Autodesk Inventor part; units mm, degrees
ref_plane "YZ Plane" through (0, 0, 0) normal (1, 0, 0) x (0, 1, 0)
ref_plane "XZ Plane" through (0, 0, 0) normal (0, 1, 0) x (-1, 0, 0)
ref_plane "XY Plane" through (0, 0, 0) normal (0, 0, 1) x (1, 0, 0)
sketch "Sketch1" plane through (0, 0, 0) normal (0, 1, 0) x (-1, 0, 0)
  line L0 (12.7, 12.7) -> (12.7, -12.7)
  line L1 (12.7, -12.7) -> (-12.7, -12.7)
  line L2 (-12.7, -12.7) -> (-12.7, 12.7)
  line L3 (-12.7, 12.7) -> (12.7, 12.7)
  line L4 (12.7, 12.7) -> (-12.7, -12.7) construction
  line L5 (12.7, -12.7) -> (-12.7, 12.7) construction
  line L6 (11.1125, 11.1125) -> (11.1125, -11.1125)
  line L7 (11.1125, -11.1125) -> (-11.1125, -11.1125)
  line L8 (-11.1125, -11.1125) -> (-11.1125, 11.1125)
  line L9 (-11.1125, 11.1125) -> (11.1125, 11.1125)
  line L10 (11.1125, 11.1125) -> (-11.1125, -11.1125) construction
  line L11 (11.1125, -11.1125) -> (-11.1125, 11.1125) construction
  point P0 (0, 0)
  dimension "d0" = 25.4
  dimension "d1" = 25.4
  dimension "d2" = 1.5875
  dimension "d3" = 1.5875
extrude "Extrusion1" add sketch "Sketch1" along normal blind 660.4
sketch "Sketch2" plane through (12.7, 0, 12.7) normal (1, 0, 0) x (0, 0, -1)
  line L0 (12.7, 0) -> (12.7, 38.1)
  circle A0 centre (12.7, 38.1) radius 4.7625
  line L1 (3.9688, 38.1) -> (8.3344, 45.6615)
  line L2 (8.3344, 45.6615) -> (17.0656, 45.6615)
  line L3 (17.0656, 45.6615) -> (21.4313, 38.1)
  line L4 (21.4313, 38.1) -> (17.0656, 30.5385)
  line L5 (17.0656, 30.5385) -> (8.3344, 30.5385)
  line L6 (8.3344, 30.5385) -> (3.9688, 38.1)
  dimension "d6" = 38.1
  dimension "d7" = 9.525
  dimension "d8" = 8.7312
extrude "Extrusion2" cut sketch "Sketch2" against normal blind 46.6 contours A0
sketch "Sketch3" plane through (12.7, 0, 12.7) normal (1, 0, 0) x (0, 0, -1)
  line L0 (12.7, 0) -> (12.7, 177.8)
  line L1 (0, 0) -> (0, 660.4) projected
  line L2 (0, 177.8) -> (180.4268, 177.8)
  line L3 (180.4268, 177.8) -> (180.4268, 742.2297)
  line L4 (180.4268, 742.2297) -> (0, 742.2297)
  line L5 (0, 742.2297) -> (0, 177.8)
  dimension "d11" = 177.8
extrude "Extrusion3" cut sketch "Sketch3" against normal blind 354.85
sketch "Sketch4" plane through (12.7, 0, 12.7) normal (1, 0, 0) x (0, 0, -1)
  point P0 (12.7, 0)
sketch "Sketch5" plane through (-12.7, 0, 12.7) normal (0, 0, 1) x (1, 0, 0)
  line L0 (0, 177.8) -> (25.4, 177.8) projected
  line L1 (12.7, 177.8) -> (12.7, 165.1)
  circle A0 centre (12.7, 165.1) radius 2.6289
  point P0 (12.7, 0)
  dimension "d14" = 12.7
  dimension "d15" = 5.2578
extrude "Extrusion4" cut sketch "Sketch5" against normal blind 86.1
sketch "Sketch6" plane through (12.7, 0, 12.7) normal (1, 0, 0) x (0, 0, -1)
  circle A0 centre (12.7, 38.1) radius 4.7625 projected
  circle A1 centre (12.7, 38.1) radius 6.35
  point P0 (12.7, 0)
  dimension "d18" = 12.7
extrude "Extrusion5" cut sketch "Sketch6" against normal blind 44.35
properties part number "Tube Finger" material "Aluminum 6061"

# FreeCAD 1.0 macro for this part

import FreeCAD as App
import Part
import Sketcher
Q = App.Units.Quantity

doc = App.newDocument("Part")
body = doc.addObject("PartDesign::Body", "Body")

# Sketch on XZ plane
sketch1 = doc.addObject("Sketcher::SketchObject", "Sketch")
body.addObject(sketch1)
sketch1.AttachmentSupport = (doc.XZ_Plane, [""])
sketch1.MapMode = "FlatFace"
sketch1.addGeometry([
    Part.LineSegment(App.Vector(-13, -13, 0), App.Vector(-13, 13, 0)),  # 0
    Part.LineSegment(App.Vector(-13, 13, 0), App.Vector(13, 13, 0)),  # 1
    Part.LineSegment(App.Vector(13, 13, 0), App.Vector(13, -13, 0)),  # 2
    Part.LineSegment(App.Vector(13, -13, 0), App.Vector(-13, -13, 0)),  # 3
    Part.LineSegment(App.Vector(11, 11, 0), App.Vector(-11, 11, 0)),  # 4
    Part.LineSegment(App.Vector(-11, 11, 0), App.Vector(-11, -11, 0)),  # 5
    Part.LineSegment(App.Vector(-11, -11, 0), App.Vector(11, -11, 0)),  # 6
    Part.LineSegment(App.Vector(11, -11, 0), App.Vector(11, 11, 0)),  # 7
], False)
sketch1.addConstraint([
    Sketcher.Constraint("Coincident", 0, 2, 1, 1),
    Sketcher.Constraint("Coincident", 1, 2, 2, 1),
    Sketcher.Constraint("Coincident", 2, 2, 3, 1),
    Sketcher.Constraint("Coincident", 3, 2, 0, 1),
    Sketcher.Constraint("Coincident", 4, 2, 5, 1),
    Sketcher.Constraint("Coincident", 5, 2, 6, 1),
    Sketcher.Constraint("Coincident", 6, 2, 7, 1),
    Sketcher.Constraint("Coincident", 7, 2, 4, 1),
    Sketcher.Constraint("Vertical", 0),
    Sketcher.Constraint("Horizontal", 1),
    Sketcher.Constraint("Vertical", 2),
    Sketcher.Constraint("Horizontal", 3),
    Sketcher.Constraint("Horizontal", 4),
    Sketcher.Constraint("Vertical", 5),
    Sketcher.Constraint("Horizontal", 6),
    Sketcher.Constraint("Vertical", 7),
    Sketcher.Constraint("Symmetric", 0, 2, 2, 2, -1, 1),
    Sketcher.Constraint("Symmetric", 4, 2, 6, 2, -1, 1),
    Sketcher.Constraint("Equal", 3, 0),
    Sketcher.Constraint("Equal", 6, 5),
    Sketcher.Constraint("DistanceX", 1, 1, 1, 2, Q("1 in")),
    Sketcher.Constraint("DistanceX", 0, 2, 4, 2, Q("0.0625 in")),
])
pad1 = doc.addObject("PartDesign::Pad", "Pad")
body.addObject(pad1)
pad1.Profile = sketch1
pad1.Length = Q("26 in")
pad1.Reversed = True

# Sketch on YZ plane
sketch2 = doc.addObject("Sketcher::SketchObject", "Sketch001")
body.addObject(sketch2)
sketch2.AttachmentSupport = (doc.YZ_Plane, [""])
sketch2.MapMode = "FlatFace"
sketch2.AttachmentOffset = App.Placement(App.Vector(0, 0, 0.5 * 25.4), App.Rotation())
sketch2.addGeometry(Part.Circle(App.Vector(38.1, 0, 0), App.Vector(0, 0, 1), 4.8), False)
sketch2.addConstraint([
    Sketcher.Constraint("PointOnObject", 0, 3, -1),
    Sketcher.Constraint("Diameter", 0, Q("0.375 in")),
    Sketcher.Constraint("DistanceX", -1, 1, 0, 3, Q("1.5 in")),
])
pocket1 = doc.addObject("PartDesign::Pocket", "Pocket")
body.addObject(pocket1)
pocket1.Profile = sketch2
pocket1.Length = 46.6

# Sketch on YZ plane
sketch3 = doc.addObject("Sketcher::SketchObject", "Sketch002")
body.addObject(sketch3)
sketch3.AttachmentSupport = (doc.YZ_Plane, [""])
sketch3.MapMode = "FlatFace"
sketch3.AttachmentOffset = App.Placement(App.Vector(0, 0, 0.5 * 25.4), App.Rotation())
sketch3.addGeometry([
    Part.LineSegment(App.Vector(742, 13, 0), App.Vector(178, 13, 0)),
    Part.LineSegment(App.Vector(178, 13, 0), App.Vector(178, -168, 0)),
    Part.LineSegment(App.Vector(178, -168, 0), App.Vector(742, -168, 0)),
    Part.LineSegment(App.Vector(742, -168, 0), App.Vector(742, 13, 0)),
], False)
sketch3.addConstraint([
    Sketcher.Constraint("Coincident", 0, 2, 1, 1),
    Sketcher.Constraint("Coincident", 1, 2, 2, 1),
    Sketcher.Constraint("Coincident", 2, 2, 3, 1),
    Sketcher.Constraint("Coincident", 3, 2, 0, 1),
    Sketcher.Constraint("Horizontal", 0),
    Sketcher.Constraint("Vertical", 1),
    Sketcher.Constraint("Horizontal", 2),
    Sketcher.Constraint("Vertical", 3),
    Sketcher.Constraint("DistanceX", -1, 1, 0, 2, Q("7 in")),
    Sketcher.Constraint("DistanceY", -1, 1, 0, 2, Q("0.5 in")),
    Sketcher.Constraint("DistanceX", 0, 2, 0, 1, Q("564.4297 mm")),
    Sketcher.Constraint("DistanceY", 1, 2, 1, 1, Q("180.4268 mm")),
])
pocket2 = doc.addObject("PartDesign::Pocket", "Pocket001")
body.addObject(pocket2)
pocket2.Profile = sketch3
pocket2.Length = 354.85

# Sketch on XY plane
sketch4 = doc.addObject("Sketcher::SketchObject", "Sketch003")
body.addObject(sketch4)
sketch4.AttachmentSupport = (doc.XY_Plane, [""])
sketch4.MapMode = "FlatFace"
sketch4.AttachmentOffset = App.Placement(App.Vector(0, 0, 0.5 * 25.4), App.Rotation())
sketch4.addGeometry(Part.Circle(App.Vector(0, 165.1, 0), App.Vector(0, 0, 1), 2.6), False)
sketch4.addConstraint([
    Sketcher.Constraint("PointOnObject", 0, 3, -2),
    Sketcher.Constraint("Diameter", 0, Q("0.207 in")),
    Sketcher.Constraint("DistanceY", -1, 1, 0, 3, Q("6.5 in")),
])
pocket3 = doc.addObject("PartDesign::Pocket", "Pocket002")
body.addObject(pocket3)
pocket3.Profile = sketch4
pocket3.Length = 86.1

# Sketch on YZ plane
sketch5 = doc.addObject("Sketcher::SketchObject", "Sketch004")
body.addObject(sketch5)
sketch5.AttachmentSupport = (doc.YZ_Plane, [""])
sketch5.MapMode = "FlatFace"
sketch5.AttachmentOffset = App.Placement(App.Vector(0, 0, 0.5 * 25.4), App.Rotation())
sketch5.addGeometry([
    Part.Circle(App.Vector(38.1, 0, 0), App.Vector(0, 0, 1), 6.3),
    Part.Circle(App.Vector(38.1, 0, 0), App.Vector(0, 0, 1), 4.8),
], False)
sketch5.addConstraint([
    Sketcher.Constraint("Coincident", 1, 3, 0, 3),
    Sketcher.Constraint("PointOnObject", 0, 3, -1),
    Sketcher.Constraint("Diameter", 0, Q("0.5 in")),
    Sketcher.Constraint("Diameter", 1, Q("0.375 in")),
    Sketcher.Constraint("DistanceX", -1, 1, 0, 3, Q("1.5 in")),
])
pocket4 = doc.addObject("PartDesign::Pocket", "Pocket003")
body.addObject(pocket4)
pocket4.Profile = sketch5
pocket4.Length = 44.35

doc.recompute()
